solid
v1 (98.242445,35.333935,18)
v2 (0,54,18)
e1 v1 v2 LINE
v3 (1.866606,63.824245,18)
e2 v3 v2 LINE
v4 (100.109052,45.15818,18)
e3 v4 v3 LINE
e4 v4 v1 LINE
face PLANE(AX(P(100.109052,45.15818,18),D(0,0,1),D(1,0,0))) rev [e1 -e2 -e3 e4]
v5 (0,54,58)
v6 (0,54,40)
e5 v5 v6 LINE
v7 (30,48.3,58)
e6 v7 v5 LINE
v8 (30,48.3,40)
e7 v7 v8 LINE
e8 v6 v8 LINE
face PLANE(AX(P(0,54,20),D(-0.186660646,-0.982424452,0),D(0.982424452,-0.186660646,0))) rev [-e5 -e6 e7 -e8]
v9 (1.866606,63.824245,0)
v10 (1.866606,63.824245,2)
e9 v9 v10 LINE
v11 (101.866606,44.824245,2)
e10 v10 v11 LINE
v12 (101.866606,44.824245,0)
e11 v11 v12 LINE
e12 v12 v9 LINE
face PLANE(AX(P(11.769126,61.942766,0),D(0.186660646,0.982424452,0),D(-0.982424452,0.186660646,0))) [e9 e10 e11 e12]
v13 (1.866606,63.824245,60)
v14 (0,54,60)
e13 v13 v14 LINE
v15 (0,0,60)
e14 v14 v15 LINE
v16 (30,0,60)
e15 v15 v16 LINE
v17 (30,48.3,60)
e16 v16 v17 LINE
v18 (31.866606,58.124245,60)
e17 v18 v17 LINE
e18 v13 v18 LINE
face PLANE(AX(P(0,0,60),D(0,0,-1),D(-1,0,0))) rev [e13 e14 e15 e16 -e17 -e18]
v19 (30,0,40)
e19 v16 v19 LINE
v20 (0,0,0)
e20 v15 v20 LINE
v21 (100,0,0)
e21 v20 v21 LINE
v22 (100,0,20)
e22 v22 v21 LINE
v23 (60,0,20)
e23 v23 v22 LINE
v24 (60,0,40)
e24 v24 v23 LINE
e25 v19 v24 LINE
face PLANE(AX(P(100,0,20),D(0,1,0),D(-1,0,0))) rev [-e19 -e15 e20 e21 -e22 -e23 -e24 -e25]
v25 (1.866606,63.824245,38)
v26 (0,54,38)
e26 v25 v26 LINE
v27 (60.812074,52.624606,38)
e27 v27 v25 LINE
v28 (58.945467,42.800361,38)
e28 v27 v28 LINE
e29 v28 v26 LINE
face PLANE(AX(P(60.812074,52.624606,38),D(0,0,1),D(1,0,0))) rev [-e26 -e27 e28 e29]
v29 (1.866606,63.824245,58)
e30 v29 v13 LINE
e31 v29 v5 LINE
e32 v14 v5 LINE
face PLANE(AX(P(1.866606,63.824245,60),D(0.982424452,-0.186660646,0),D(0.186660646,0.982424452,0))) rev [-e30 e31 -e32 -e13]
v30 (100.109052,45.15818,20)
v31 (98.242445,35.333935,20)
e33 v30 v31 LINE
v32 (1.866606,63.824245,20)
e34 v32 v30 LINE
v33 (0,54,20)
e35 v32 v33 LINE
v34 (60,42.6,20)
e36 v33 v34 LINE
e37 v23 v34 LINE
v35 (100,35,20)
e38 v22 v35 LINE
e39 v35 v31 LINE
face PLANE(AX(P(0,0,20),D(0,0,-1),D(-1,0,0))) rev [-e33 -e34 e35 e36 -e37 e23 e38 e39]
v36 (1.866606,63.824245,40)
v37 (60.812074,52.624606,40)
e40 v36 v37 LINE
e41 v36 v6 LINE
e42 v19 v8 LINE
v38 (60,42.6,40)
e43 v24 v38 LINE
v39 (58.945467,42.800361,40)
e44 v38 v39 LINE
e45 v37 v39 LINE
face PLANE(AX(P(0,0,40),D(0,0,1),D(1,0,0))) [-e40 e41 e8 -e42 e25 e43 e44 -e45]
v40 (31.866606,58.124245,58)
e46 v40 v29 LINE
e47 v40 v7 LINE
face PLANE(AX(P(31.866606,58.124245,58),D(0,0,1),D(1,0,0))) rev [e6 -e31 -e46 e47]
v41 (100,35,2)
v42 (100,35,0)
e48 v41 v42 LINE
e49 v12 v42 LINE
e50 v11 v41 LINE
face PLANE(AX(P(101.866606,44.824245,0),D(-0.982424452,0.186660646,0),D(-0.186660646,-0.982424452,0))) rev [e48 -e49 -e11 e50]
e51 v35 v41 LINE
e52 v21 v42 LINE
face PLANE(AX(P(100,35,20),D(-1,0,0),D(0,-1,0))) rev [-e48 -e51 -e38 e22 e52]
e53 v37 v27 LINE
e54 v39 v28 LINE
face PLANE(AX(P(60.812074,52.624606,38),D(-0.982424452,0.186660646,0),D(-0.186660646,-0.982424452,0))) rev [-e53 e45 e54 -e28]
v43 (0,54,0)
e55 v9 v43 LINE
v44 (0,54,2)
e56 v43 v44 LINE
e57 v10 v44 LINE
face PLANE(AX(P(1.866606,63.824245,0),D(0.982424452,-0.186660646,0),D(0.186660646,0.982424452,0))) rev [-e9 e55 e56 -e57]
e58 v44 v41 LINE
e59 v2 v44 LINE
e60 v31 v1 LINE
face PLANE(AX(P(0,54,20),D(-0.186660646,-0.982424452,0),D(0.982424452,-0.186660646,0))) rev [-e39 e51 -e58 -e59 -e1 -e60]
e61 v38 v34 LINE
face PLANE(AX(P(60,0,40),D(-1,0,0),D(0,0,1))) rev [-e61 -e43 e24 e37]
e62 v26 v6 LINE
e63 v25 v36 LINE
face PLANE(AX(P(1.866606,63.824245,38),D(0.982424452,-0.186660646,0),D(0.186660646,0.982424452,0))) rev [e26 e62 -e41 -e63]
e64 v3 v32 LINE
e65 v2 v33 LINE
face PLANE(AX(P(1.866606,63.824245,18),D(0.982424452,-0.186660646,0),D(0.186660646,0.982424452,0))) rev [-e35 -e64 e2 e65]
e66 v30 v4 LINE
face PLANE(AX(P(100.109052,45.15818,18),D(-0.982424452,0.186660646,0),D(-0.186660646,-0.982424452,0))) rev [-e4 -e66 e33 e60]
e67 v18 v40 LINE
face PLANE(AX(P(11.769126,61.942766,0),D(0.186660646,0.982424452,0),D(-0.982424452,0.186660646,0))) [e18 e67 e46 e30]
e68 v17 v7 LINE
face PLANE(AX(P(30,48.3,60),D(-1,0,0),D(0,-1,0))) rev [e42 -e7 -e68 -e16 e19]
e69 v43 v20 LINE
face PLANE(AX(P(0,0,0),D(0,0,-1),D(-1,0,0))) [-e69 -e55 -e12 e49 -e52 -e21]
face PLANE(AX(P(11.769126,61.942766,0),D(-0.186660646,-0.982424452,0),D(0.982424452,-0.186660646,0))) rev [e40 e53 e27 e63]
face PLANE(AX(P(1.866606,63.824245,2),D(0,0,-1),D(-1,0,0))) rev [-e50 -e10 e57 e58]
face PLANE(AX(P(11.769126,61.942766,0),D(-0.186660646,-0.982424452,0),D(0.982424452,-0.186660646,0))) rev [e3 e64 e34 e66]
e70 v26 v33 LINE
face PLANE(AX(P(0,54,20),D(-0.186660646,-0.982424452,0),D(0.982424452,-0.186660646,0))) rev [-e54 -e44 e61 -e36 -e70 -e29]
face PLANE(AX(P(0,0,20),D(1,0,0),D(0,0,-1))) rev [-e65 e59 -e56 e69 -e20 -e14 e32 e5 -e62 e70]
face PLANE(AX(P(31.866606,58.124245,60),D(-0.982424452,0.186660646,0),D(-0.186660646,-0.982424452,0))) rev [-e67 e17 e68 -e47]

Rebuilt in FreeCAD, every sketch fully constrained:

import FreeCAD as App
import Part
import Sketcher

V = App.Vector
Q = App.Units.Quantity


def add_polygon(sketch, points):
    """Adds a closed chain of lines whose ends are joined by coincident constraints."""
    first, n = sketch.GeometryCount, len(points)
    for a, b in zip(points, points[1:] + points[:1]):
        sketch.addGeometry(Part.LineSegment(App.Vector(*a, 0), App.Vector(*b, 0)), False)
    for i in range(n):
        sketch.addConstraint(Sketcher.Constraint("Coincident", first + i, 2, first + (i + 1) % n, 1))

doc = App.newDocument("Part")
params = doc.addObject("Spreadsheet::Sheet", "Params")
for row, (alias, value) in enumerate([
    ("sketch1_width", "100 mm"),
    ("sketch1_height", "54 mm"),
    ("sketch1_height2", "35 mm"),
    ("pad1_length", "20 mm"),
    ("sketch2_width", "60 mm"),
    ("sketch2_height", "54 mm"),
    ("sketch2_height2", "42.6 mm"),
    ("pad2_length", "20 mm"),
    ("sketch3_width", "30 mm"),
    ("sketch3_height", "54 mm"),
    ("sketch3_height2", "48.3 mm"),
    ("pad3_length", "20 mm"),
    ("sketch4_width", "100 mm"),
    ("sketch4_width2", "60 mm"),
    ("sketch4_height", "2 mm"),
    ("pad4_length", "10 mm"),
], start=1):
    params.set(f"A{row}", alias)
    params.set(f"B{row}", "=" + value)
    params.setAlias(f"B{row}", alias)

body = doc.addObject("PartDesign::Body", "Body")

# Sketch on XY plane
sketch1 = body.newObject("Sketcher::SketchObject", "Sketch")
sketch1.AttachmentSupport = (doc.getObject("XY_Plane"), [""])
sketch1.MapMode = "FlatFace"
add_polygon(sketch1, [(0, 54), (0, 0), (100, 0), (100, 35)])  # lines 0-3
sketch1.addConstraint(Sketcher.Constraint("Vertical", 0))
sketch1.addConstraint(Sketcher.Constraint("Horizontal", 1))
sketch1.addConstraint(Sketcher.Constraint("Vertical", 2))
sketch1.addConstraint(Sketcher.Constraint("Coincident", 0, 2, -1, 1))
sketch1.addConstraint(Sketcher.Constraint("DistanceX", 1, 1, 1, 2, Q("100 mm")))
sketch1.addConstraint(Sketcher.Constraint("DistanceY", 0, 2, 0, 1, Q("54 mm")))
sketch1.addConstraint(Sketcher.Constraint("DistanceY", 2, 1, 2, 2, Q("35 mm")))
sketch1.setExpression("Constraints[8]", "Params.sketch1_width")
sketch1.setExpression("Constraints[9]", "Params.sketch1_height")
sketch1.setExpression("Constraints[10]", "Params.sketch1_height2")
pad1 = body.newObject("PartDesign::Pad", "Pad")
pad1.Profile = sketch1
pad1.setExpression("Length", "Params.pad1_length")

# Sketch on XY plane
sketch2 = body.newObject("Sketcher::SketchObject", "Sketch001")
sketch2.AttachmentSupport = (doc.getObject("XY_Plane"), [""])
sketch2.MapMode = "FlatFace"
sketch2.AttachmentOffset = App.Placement(V(0, 0, 20), App.Rotation())
add_polygon(sketch2, [(0, 54), (0, 0), (60, 0), (60, 43)])  # lines 0-3
sketch2.addConstraint(Sketcher.Constraint("Vertical", 0))
sketch2.addConstraint(Sketcher.Constraint("Horizontal", 1))
sketch2.addConstraint(Sketcher.Constraint("Vertical", 2))
sketch2.addConstraint(Sketcher.Constraint("Coincident", 0, 2, -1, 1))
sketch2.addConstraint(Sketcher.Constraint("DistanceX", 1, 1, 1, 2, Q("60 mm")))
sketch2.addConstraint(Sketcher.Constraint("DistanceY", 0, 2, 0, 1, Q("54 mm")))
sketch2.addConstraint(Sketcher.Constraint("DistanceY", 2, 1, 2, 2, Q("42.6 mm")))
sketch2.setExpression("Constraints[8]", "Params.sketch2_width")
sketch2.setExpression("Constraints[9]", "Params.sketch2_height")
sketch2.setExpression("Constraints[10]", "Params.sketch2_height2")
pad2 = body.newObject("PartDesign::Pad", "Pad001")
pad2.Profile = sketch2
pad2.setExpression("Length", "Params.pad2_length")

# Sketch on XY plane
sketch3 = body.newObject("Sketcher::SketchObject", "Sketch002")
sketch3.AttachmentSupport = (doc.getObject("XY_Plane"), [""])
sketch3.MapMode = "FlatFace"
sketch3.AttachmentOffset = App.Placement(V(0, 0, 40), App.Rotation())
add_polygon(sketch3, [(0, 54), (0, 0), (30, 0), (30, 48)])  # lines 0-3
sketch3.addConstraint(Sketcher.Constraint("Vertical", 0))
sketch3.addConstraint(Sketcher.Constraint("Horizontal", 1))
sketch3.addConstraint(Sketcher.Constraint("Vertical", 2))
sketch3.addConstraint(Sketcher.Constraint("Coincident", 0, 2, -1, 1))
sketch3.addConstraint(Sketcher.Constraint("DistanceX", 1, 1, 1, 2, Q("30 mm")))
sketch3.addConstraint(Sketcher.Constraint("DistanceY", 0, 2, 0, 1, Q("54 mm")))
sketch3.addConstraint(Sketcher.Constraint("DistanceY", 2, 1, 2, 2, Q("48.3 mm")))
sketch3.setExpression("Constraints[8]", "Params.sketch3_width")
sketch3.setExpression("Constraints[9]", "Params.sketch3_height")
sketch3.setExpression("Constraints[10]", "Params.sketch3_height2")
pad3 = body.newObject("PartDesign::Pad", "Pad002")
pad3.Profile = sketch3
pad3.setExpression("Length", "Params.pad3_length")

# Sketch on an angled plane
sketch4 = body.newObject("Sketcher::SketchObject", "Sketch003")
sketch4.Placement = App.Placement(V(9.902519, 52.118521, 0), App.Rotation(V(0.982424452, -0.186660646, 0), V(0, 0, -1.000000001), V(0.186660646, 0.982424452, 0), "ZXY"))
add_polygon(sketch4, [(-10.1, 0), (-10.1, -2), (91.7, -2), (91.7, 0)])  # lines 0-3
add_polygon(sketch4, [(-10.1, -18), (-10.1, -20), (89.9, -20), (89.9, -18)])  # lines 4-7
add_polygon(sketch4, [(-10.1, -38), (-10.1, -40), (49.9, -40), (49.9, -38)])  # lines 8-11
add_polygon(sketch4, [(-10.1, -58), (-10.1, -60), (20.5, -60), (20.5, -58)])  # lines 12-15
sketch4.addConstraint(Sketcher.Constraint("Vertical", 0))
sketch4.addConstraint(Sketcher.Constraint("Horizontal", 1))
sketch4.addConstraint(Sketcher.Constraint("Vertical", 2))
sketch4.addConstraint(Sketcher.Constraint("Horizontal", 3))
sketch4.addConstraint(Sketcher.Constraint("Vertical", 4))
sketch4.addConstraint(Sketcher.Constraint("Horizontal", 5))
sketch4.addConstraint(Sketcher.Constraint("Vertical", 6))
sketch4.addConstraint(Sketcher.Constraint("Horizontal", 7))
sketch4.addConstraint(Sketcher.Constraint("Vertical", 8))
sketch4.addConstraint(Sketcher.Constraint("Horizontal", 9))
sketch4.addConstraint(Sketcher.Constraint("Vertical", 10))
sketch4.addConstraint(Sketcher.Constraint("Horizontal", 11))
sketch4.addConstraint(Sketcher.Constraint("Vertical", 12))
sketch4.addConstraint(Sketcher.Constraint("Horizontal", 13))
sketch4.addConstraint(Sketcher.Constraint("Vertical", 14))
sketch4.addConstraint(Sketcher.Constraint("Horizontal", 15))
sketch4.addConstraint(Sketcher.Constraint("PointOnObject", 2, 2, -1))
sketch4.addConstraint(Sketcher.Constraint("Vertical", 3, 2, 4, 2))
sketch4.addConstraint(Sketcher.Constraint("Vertical", 7, 2, 8, 2))
sketch4.addConstraint(Sketcher.Constraint("Vertical", 11, 2, 12, 2))
sketch4.addConstraint(Sketcher.Constraint("Equal", 2, 4))
sketch4.addConstraint(Sketcher.Constraint("Equal", 6, 8))
sketch4.addConstraint(Sketcher.Constraint("Equal", 10, 12))
sketch4.addConstraint(Sketcher.Constraint("DistanceX", 5, 1, 5, 2, Q("100 mm")))
sketch4.addConstraint(Sketcher.Constraint("DistanceX", 9, 1, 9, 2, Q("60 mm")))
sketch4.addConstraint(Sketcher.Constraint("DistanceY", 0, 2, 0, 1, Q("2 mm")))
sketch4.addConstraint(Sketcher.Constraint("DistanceY", 4, 2, -1, 1, Q("20 mm")))
sketch4.addConstraint(Sketcher.Constraint("DistanceY", 8, 2, -1, 1, Q("40 mm")))
sketch4.addConstraint(Sketcher.Constraint("DistanceY", 12, 2, -1, 1, Q("60 mm")))
sketch4.addConstraint(Sketcher.Constraint("DistanceX", 13, 1, 13, 2, Q("30.536699 mm")))
sketch4.addConstraint(Sketcher.Constraint("DistanceX", 1, 1, 1, 2, Q("101.788998 mm")))
sketch4.addConstraint(Sketcher.Constraint("DistanceX", 0, 2, -1, 1, Q("10.079675 mm")))
sketch4.setExpression("Constraints[39]", "Params.sketch4_width")
sketch4.setExpression("Constraints[40]", "Params.sketch4_width2")
sketch4.setExpression("Constraints[41]", "Params.sketch4_height")
pad4 = body.newObject("PartDesign::Pad", "Pad003")
pad4.Profile = sketch4
pad4.setExpression("Length", "Params.pad4_length")

doc.recompute()
